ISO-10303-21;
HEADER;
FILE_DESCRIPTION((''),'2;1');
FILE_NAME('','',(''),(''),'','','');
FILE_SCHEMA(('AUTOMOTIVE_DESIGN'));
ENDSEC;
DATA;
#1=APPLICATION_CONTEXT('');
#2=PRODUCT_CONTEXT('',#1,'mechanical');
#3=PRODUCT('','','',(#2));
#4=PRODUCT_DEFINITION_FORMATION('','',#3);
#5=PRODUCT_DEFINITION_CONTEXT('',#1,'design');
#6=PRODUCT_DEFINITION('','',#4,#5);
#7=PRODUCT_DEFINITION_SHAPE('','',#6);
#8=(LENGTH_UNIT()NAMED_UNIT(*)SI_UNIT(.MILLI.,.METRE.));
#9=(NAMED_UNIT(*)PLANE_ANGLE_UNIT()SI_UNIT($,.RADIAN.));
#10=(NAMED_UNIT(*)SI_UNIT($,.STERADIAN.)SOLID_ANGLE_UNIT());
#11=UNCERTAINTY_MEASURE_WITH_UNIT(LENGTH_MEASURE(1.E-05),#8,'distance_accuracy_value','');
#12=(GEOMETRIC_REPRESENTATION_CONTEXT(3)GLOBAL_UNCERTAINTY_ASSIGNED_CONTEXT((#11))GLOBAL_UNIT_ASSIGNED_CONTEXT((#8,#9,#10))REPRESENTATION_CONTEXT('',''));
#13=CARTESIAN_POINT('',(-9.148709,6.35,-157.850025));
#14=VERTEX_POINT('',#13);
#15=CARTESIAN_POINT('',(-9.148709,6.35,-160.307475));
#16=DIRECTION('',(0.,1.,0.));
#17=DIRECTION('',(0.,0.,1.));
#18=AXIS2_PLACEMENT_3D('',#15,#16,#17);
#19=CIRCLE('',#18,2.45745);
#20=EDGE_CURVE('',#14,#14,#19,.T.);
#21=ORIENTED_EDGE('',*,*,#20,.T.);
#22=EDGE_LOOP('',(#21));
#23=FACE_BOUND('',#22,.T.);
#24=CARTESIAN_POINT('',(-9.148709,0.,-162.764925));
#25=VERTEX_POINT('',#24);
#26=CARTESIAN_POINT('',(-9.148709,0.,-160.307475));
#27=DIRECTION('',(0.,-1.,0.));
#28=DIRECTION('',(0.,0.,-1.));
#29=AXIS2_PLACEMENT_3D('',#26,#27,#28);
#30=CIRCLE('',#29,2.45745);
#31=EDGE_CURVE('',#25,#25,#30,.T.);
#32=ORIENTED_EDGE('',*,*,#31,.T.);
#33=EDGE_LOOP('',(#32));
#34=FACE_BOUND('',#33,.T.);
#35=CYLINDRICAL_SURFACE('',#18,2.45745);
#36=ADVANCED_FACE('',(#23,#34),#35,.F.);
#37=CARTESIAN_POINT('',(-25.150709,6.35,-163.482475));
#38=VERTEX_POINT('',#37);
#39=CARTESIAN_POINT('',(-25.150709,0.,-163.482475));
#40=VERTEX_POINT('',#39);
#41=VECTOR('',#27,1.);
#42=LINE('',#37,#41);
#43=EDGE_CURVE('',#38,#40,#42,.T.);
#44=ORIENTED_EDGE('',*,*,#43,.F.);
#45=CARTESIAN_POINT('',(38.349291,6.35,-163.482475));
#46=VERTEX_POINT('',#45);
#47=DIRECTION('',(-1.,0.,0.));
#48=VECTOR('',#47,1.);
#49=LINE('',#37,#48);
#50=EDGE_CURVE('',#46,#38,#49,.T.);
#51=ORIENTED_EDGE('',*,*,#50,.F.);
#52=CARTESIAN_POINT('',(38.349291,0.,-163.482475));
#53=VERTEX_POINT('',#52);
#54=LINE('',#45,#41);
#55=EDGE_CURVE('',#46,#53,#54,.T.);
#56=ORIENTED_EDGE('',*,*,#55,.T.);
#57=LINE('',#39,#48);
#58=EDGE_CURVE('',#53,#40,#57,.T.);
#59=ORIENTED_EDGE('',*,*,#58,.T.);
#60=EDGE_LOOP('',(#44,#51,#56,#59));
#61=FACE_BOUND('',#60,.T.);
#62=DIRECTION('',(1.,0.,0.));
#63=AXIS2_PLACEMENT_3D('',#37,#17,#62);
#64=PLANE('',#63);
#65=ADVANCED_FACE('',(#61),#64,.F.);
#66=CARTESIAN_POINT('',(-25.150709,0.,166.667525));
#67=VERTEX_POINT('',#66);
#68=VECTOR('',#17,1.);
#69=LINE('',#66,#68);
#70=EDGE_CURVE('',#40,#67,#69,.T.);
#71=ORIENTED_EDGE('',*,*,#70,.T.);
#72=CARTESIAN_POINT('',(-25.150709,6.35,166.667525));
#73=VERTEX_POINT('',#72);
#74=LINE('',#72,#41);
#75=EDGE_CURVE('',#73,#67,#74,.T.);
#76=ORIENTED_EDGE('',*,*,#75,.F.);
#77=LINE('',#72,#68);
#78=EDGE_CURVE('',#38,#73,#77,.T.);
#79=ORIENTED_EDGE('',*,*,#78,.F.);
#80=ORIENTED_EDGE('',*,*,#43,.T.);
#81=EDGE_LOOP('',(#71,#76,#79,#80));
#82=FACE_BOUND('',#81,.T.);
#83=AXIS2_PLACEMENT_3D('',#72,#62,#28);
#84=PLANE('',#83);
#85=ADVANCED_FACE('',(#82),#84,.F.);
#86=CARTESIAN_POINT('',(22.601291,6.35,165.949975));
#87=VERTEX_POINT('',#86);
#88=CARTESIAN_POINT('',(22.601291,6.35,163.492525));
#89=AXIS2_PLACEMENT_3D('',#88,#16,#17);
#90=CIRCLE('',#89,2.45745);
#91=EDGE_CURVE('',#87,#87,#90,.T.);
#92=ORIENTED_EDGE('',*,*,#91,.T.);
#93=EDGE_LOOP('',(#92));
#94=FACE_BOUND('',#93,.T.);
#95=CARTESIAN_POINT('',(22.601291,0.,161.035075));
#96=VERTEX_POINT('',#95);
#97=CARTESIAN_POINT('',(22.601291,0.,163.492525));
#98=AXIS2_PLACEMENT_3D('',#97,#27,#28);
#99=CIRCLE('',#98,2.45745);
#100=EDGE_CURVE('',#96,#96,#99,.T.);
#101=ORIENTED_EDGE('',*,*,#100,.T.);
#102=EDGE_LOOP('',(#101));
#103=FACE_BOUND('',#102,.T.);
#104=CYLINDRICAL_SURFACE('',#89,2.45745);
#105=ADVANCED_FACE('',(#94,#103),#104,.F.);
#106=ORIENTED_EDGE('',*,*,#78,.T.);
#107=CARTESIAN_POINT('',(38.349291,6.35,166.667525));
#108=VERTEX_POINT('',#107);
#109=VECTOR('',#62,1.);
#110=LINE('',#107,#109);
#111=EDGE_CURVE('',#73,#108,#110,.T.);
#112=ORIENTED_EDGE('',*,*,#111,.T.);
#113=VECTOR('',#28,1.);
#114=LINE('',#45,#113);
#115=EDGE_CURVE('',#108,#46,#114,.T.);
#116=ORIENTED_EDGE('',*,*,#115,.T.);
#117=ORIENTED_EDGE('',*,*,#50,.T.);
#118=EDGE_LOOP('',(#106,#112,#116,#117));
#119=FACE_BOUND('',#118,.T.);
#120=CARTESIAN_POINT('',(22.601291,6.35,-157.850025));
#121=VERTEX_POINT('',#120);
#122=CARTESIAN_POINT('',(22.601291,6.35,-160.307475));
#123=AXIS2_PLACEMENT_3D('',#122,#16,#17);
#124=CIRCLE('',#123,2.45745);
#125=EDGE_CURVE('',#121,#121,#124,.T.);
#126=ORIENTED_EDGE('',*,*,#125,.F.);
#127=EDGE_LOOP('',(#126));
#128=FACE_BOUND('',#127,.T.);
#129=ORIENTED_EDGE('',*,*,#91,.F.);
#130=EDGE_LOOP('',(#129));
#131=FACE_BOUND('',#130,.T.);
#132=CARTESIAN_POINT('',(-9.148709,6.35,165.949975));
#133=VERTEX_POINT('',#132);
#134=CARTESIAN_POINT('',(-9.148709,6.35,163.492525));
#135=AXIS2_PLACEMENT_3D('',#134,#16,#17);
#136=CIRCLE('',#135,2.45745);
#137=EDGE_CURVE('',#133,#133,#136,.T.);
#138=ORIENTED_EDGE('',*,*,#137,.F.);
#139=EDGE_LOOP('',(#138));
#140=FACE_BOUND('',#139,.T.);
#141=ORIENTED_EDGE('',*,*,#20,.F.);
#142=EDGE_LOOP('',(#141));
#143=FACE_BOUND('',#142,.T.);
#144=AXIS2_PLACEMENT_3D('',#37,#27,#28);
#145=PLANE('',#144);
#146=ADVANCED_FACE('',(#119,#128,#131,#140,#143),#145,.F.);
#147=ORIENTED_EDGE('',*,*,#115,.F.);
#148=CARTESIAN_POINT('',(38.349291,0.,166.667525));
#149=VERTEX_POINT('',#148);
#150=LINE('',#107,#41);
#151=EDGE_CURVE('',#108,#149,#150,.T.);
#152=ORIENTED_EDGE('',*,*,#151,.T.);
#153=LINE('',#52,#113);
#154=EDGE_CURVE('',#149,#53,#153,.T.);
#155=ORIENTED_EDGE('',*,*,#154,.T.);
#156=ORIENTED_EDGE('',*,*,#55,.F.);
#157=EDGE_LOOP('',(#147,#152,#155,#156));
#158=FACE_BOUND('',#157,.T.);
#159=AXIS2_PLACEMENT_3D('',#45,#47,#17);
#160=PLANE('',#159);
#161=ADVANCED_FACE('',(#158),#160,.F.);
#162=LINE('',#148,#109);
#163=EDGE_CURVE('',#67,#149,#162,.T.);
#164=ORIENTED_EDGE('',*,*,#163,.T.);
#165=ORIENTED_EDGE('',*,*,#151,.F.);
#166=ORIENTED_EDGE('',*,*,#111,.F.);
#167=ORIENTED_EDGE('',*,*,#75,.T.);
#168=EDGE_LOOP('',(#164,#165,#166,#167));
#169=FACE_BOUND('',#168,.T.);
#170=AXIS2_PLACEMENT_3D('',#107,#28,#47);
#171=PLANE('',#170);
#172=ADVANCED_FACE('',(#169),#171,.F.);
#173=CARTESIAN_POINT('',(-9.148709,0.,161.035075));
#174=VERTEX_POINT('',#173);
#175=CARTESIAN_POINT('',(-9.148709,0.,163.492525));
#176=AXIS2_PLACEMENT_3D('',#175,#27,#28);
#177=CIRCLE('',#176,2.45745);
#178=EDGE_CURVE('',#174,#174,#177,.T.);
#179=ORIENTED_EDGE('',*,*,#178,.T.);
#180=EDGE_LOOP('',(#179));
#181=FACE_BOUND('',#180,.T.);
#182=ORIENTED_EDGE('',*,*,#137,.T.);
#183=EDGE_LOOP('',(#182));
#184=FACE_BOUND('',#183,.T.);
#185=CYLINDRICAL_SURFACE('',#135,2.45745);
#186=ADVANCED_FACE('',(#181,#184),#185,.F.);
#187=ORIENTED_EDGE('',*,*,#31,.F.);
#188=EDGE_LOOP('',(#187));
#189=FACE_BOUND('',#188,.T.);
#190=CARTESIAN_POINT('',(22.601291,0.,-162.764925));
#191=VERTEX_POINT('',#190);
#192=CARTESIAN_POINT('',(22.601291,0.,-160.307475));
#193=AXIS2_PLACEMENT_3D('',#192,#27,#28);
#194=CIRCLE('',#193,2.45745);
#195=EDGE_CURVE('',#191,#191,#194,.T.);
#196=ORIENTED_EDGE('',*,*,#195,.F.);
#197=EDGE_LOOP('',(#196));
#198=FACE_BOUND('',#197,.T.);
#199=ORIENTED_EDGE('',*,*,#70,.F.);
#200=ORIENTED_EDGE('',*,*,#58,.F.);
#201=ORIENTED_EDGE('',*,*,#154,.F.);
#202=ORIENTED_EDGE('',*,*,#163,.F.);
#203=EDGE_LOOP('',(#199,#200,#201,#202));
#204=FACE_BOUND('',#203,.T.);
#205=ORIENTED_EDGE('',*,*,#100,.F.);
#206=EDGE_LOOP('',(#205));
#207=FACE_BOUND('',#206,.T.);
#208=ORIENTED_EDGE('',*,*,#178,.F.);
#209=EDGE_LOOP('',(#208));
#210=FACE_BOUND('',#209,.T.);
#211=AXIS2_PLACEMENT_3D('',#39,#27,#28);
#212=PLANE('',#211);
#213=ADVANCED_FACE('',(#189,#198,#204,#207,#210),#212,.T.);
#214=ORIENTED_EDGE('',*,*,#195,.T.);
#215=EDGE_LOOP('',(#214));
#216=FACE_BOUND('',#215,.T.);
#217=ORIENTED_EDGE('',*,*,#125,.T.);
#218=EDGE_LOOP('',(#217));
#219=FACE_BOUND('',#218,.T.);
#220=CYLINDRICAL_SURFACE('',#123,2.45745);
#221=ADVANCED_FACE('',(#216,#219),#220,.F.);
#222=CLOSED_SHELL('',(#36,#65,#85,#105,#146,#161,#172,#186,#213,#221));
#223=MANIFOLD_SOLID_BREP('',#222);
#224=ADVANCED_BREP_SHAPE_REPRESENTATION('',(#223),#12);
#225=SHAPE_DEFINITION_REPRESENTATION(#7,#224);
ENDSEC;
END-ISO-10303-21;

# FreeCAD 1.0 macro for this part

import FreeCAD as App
import Part
import Sketcher

V = App.Vector
Q = App.Units.Quantity

doc = App.newDocument("Part")
params = doc.addObject("Spreadsheet::Sheet", "Params")
for row, (alias, value) in enumerate([
    ("sketch1_width", "2.5 in"),
    ("pad1_length", "0.25 in"),
    ("hole_diameter", "0.1935 in"),
    ("hole_depth", "70 mm"),
], start=1):
    params.set(f"A{row}", alias)
    params.set(f"B{row}", "=" + value)
    params.setAlias(f"B{row}", alias)

body = doc.addObject("PartDesign::Body", "Body")

# Sketch on XZ plane
sketch1 = body.newObject("Sketcher::SketchObject", "Sketch")
sketch1.AttachmentSupport = (doc.getObject("XZ_Plane"), [""])
sketch1.MapMode = "FlatFace"
sketch1.addGeometry([
    Part.LineSegment(V(-25, -163, 0), V(-25, 167, 0)),
    Part.LineSegment(V(-25, 167, 0), V(38, 167, 0)),
    Part.LineSegment(V(38, 167, 0), V(38, -163, 0)),
    Part.LineSegment(V(38, -163, 0), V(-25, -163, 0)),
], False)
sketch1.addConstraint([
    Sketcher.Constraint("Coincident", 0, 2, 1, 1),
    Sketcher.Constraint("Coincident", 1, 2, 2, 1),
    Sketcher.Constraint("Coincident", 2, 2, 3, 1),
    Sketcher.Constraint("Coincident", 3, 2, 0, 1),
    Sketcher.Constraint("Vertical", 0),
    Sketcher.Constraint("Horizontal", 1),
    Sketcher.Constraint("Vertical", 2),
    Sketcher.Constraint("Horizontal", 3),
    Sketcher.Constraint("DistanceX", 1, 1, 1, 2, Q("2.5 in")),
    Sketcher.Constraint("DistanceY", 0, 1, 0, 2, 330.15),
    Sketcher.Constraint("DistanceX", 0, 2, -1, 1, 25.150709),
    Sketcher.Constraint("DistanceY", -1, 1, 0, 2, 166.667525),
])
sketch1.setExpression("Constraints[8]", "Params.sketch1_width")
pad1 = body.newObject("PartDesign::Pad", "Pad")
pad1.Profile = sketch1
pad1.setExpression("Length", "Params.pad1_length")
pad1.Reversed = True

# Sketch on XZ plane
sketch2 = body.newObject("Sketcher::SketchObject", "Sketch001")
sketch2.AttachmentSupport = (doc.getObject("XZ_Plane"), [""])
sketch2.MapMode = "FlatFace"
sketch2.AttachmentOffset = App.Placement(V(0, 0, -0.25 * 25.4), App.Rotation())
sketch2.addGeometry([
    Part.Circle(V(22.6, -160.3, 0), V(0, 0, 1), 2.5),
    Part.Circle(V(-9.1, -160.3, 0), V(0, 0, 1), 2.5),
    Part.Circle(V(-9.1, 163.5, 0), V(0, 0, 1), 2.5),
    Part.Circle(V(22.6, 163.5, 0), V(0, 0, 1), 2.5),
], False)
sketch2.addConstraint([
    Sketcher.Constraint("Equal", 0, 1),
    Sketcher.Constraint("Equal", 1, 2),
    Sketcher.Constraint("Equal", 2, 3),
    Sketcher.Constraint("Horizontal", 0, 3, 1, 3),
    Sketcher.Constraint("Horizontal", 2, 3, 3, 3),
    Sketcher.Constraint("Vertical", 1, 3, 2, 3),
    Sketcher.Constraint("Vertical", 0, 3, 3, 3),
    Sketcher.Constraint("Diameter", 0, Q("0.1935 in")),
    Sketcher.Constraint("DistanceX", 1, 3, 0, 3, Q("1.25 in")),
    Sketcher.Constraint("DistanceY", 1, 3, 2, 3, 323.8),
    Sketcher.Constraint("DistanceX", -1, 1, 0, 3, 22.601291),
    Sketcher.Constraint("DistanceY", 0, 3, -1, 1, 160.307475),
])
doc.recompute()
hole = body.newObject("PartDesign::Hole", "Hole")
hole.Profile = sketch2
hole.ThreadType = "None"
hole.setExpression("Diameter", "Params.hole_diameter")
hole.DepthType = "Dimension"
hole.setExpression("Depth", "Params.hole_depth")
hole.DrillPoint = "Angled"
hole.DrillPointAngle = 118
hole.Reversed = True

doc.recompute()
